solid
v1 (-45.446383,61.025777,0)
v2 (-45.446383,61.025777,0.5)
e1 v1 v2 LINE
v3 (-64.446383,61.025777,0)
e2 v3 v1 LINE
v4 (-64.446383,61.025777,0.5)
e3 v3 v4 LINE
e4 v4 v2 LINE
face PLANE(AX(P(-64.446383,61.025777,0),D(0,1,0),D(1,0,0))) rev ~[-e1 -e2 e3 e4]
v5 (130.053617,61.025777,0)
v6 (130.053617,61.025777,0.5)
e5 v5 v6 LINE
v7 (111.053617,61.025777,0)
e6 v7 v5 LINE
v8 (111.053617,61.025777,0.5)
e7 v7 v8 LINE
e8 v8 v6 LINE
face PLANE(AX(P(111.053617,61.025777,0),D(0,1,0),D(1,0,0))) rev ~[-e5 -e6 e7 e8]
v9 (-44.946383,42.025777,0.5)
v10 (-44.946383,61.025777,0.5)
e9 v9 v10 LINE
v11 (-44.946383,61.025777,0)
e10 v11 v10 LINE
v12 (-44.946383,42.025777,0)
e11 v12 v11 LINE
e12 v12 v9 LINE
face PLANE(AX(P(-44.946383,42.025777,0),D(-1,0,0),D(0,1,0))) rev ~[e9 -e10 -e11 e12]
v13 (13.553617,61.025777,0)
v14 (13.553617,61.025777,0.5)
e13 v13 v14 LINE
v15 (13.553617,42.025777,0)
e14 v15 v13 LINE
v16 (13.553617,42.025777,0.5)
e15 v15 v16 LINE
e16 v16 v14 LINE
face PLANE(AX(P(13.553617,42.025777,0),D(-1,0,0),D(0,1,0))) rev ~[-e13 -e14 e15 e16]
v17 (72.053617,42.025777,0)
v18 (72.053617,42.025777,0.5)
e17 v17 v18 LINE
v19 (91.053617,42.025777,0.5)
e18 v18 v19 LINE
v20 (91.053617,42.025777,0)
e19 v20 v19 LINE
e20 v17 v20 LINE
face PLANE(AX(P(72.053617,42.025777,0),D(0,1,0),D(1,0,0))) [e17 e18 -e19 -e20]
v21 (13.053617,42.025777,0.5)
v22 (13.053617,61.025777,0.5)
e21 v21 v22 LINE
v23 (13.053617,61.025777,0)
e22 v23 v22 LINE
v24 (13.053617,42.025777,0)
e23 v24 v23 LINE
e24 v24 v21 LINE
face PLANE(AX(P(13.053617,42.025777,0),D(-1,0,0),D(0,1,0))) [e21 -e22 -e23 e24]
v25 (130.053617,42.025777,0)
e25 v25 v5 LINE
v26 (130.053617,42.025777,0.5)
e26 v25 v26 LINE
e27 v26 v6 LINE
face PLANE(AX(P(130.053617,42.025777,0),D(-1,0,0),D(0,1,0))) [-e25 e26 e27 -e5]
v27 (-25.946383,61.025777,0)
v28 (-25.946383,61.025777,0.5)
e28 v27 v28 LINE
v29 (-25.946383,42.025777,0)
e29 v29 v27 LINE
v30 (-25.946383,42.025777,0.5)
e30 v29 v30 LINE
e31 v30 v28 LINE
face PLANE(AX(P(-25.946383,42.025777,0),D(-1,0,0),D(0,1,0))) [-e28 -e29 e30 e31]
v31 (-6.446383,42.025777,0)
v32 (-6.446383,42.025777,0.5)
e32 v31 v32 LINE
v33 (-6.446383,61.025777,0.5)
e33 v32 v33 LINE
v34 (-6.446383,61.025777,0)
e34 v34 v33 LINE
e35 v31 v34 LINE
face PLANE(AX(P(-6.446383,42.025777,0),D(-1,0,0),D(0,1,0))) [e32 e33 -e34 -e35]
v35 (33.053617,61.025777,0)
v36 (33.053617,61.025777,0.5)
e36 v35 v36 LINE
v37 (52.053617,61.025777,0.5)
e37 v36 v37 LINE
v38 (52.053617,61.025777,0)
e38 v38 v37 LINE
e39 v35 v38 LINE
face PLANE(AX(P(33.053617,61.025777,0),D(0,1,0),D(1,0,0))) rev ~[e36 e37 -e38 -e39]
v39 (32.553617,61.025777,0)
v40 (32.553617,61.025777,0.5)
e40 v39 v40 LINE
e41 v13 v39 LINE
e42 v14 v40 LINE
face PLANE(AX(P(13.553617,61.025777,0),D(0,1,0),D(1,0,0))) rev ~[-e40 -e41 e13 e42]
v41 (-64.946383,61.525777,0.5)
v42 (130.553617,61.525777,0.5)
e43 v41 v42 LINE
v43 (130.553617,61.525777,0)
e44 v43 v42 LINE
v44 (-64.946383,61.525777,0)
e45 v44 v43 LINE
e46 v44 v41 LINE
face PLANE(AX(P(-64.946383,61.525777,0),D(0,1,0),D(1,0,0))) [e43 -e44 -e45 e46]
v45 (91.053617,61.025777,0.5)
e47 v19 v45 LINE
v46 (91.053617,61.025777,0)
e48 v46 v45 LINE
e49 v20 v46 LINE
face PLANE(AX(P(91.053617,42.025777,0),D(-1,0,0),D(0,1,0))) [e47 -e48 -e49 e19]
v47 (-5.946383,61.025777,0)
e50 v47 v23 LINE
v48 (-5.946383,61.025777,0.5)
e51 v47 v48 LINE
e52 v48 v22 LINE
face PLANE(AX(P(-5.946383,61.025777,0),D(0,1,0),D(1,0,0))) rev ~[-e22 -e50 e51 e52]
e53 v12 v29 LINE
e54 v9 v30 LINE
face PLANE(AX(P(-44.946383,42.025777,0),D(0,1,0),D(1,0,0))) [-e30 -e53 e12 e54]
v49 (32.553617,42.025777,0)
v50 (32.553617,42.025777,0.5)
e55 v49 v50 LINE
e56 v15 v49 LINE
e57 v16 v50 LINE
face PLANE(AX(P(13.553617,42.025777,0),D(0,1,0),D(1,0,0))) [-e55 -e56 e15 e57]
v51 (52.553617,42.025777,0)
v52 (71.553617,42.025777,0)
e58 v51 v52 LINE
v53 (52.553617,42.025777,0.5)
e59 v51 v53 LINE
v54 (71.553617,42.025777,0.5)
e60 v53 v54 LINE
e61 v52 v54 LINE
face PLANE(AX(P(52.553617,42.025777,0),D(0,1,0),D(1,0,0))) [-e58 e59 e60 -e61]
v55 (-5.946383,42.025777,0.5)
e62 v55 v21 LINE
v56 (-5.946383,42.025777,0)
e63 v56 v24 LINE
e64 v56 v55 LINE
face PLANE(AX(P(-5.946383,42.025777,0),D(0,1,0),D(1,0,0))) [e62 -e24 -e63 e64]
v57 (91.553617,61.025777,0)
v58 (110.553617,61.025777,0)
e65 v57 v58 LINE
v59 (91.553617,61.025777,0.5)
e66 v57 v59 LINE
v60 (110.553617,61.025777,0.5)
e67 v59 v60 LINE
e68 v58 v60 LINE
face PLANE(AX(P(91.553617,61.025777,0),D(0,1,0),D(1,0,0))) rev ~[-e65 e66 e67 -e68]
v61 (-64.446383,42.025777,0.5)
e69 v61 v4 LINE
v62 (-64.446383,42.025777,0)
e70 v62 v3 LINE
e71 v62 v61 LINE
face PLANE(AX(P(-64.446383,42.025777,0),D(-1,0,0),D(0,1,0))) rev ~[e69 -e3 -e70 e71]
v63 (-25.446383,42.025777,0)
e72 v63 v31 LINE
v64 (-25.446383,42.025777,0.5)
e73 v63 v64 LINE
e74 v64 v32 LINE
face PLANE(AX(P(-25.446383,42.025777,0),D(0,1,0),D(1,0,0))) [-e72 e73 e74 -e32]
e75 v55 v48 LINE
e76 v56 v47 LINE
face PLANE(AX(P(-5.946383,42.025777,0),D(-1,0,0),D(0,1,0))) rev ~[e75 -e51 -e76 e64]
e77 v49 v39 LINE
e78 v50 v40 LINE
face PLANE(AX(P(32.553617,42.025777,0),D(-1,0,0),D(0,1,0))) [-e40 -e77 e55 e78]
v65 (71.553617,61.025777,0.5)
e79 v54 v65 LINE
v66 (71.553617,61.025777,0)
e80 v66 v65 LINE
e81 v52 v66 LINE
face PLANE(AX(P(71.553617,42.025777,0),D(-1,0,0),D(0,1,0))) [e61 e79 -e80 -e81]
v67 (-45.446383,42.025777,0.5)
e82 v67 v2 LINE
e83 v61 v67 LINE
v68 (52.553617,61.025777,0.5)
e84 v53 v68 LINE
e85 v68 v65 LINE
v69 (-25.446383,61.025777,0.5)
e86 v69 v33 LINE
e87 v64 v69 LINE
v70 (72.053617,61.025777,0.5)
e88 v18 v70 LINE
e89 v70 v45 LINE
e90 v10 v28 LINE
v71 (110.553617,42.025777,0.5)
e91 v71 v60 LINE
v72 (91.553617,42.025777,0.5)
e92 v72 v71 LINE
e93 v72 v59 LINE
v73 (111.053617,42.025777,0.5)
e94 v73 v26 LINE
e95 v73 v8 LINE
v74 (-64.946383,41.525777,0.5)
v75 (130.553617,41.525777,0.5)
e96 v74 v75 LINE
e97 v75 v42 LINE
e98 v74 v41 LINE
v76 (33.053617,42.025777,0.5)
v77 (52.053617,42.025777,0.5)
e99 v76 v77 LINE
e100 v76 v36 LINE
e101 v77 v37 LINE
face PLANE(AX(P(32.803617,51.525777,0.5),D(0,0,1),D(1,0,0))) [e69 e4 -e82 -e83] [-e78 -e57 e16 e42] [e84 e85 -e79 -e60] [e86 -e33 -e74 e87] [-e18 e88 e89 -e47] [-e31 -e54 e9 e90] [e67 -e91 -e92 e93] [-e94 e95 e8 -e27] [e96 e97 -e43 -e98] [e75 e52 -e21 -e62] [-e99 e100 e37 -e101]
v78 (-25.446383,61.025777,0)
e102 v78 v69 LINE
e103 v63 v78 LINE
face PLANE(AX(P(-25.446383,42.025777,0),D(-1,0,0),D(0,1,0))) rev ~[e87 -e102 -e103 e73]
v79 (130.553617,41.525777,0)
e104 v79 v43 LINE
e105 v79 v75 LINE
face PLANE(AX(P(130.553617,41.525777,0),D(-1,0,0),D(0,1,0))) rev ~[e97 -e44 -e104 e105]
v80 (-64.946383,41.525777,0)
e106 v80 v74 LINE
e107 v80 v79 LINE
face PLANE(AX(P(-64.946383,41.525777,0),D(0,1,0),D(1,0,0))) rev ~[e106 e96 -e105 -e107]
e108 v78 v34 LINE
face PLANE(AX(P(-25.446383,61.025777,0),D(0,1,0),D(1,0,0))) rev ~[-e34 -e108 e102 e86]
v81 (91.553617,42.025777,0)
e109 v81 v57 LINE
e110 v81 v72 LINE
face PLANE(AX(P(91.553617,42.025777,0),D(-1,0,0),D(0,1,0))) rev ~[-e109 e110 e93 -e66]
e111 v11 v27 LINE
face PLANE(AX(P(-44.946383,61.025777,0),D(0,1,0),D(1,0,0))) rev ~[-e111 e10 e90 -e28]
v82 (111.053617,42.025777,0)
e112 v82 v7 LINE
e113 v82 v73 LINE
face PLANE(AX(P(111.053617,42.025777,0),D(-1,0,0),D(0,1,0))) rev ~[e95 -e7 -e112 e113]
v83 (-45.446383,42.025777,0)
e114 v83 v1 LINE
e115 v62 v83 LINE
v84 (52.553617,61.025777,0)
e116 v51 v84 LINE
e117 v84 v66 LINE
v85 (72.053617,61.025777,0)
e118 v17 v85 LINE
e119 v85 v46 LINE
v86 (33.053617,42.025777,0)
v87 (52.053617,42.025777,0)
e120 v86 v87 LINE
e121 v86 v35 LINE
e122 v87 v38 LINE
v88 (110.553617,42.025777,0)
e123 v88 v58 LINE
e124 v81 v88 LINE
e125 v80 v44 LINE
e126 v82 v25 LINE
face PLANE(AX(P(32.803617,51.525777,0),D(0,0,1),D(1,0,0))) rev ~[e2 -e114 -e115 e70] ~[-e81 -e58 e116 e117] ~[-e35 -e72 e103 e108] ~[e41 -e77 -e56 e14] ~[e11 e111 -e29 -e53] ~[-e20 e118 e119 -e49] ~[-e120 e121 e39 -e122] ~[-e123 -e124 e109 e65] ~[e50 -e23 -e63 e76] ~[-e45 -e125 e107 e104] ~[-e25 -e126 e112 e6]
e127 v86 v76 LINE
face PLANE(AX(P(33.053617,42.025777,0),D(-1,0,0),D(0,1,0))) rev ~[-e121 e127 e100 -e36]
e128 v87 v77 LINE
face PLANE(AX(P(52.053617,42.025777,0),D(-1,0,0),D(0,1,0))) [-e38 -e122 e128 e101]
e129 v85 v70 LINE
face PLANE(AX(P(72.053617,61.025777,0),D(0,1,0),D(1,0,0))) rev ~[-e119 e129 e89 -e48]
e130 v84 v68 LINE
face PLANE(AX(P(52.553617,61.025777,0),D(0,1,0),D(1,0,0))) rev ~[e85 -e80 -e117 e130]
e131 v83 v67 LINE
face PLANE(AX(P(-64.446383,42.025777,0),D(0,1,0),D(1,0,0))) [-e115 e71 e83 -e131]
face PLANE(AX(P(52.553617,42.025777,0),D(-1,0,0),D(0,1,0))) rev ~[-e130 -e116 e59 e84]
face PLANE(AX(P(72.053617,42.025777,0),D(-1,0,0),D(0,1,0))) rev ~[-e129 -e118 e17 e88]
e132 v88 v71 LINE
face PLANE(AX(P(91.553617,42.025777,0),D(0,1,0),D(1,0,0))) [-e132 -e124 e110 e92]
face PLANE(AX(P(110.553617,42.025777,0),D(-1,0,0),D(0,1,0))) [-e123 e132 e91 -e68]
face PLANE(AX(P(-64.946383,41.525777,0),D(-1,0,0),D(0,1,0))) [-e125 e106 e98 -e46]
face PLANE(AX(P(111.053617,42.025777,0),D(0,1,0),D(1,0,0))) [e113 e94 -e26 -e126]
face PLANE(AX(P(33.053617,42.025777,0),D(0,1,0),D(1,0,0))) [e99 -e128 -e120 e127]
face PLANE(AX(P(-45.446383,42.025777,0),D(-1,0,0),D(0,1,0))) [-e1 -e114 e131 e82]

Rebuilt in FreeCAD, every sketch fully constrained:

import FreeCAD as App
import Part
import Sketcher

V = App.Vector
Q = App.Units.Quantity

doc = App.newDocument("Part")
params = doc.addObject("Spreadsheet::Sheet", "Params")
for row, (alias, value) in enumerate([
    ("sketch1_width", "19 mm"),
    ("sketch1_height", "20 mm"),
    ("sketch1_width2", "195.5 mm"),
    ("pad1_length", "0.5 mm"),
], start=1):
    params.set(f"A{row}", alias)
    params.set(f"B{row}", "=" + value)
    params.setAlias(f"B{row}", alias)

body = doc.addObject("PartDesign::Body", "Body")

# Sketch on XY plane
sketch1 = body.newObject("Sketcher::SketchObject", "Sketch")
sketch1.AttachmentSupport = (doc.getObject("XY_Plane"), [""])
sketch1.MapMode = "FlatFace"
sketch1.addGeometry([
    Part.LineSegment(V(-65, 62, 0), V(-65, 42, 0)),  # 0
    Part.LineSegment(V(-65, 42, 0), V(131, 42, 0)),  # 1
    Part.LineSegment(V(131, 42, 0), V(131, 62, 0)),  # 2
    Part.LineSegment(V(131, 62, 0), V(-65, 62, 0)),  # 3
    Part.LineSegment(V(-45, 42, 0), V(-64, 42, 0)),  # 4
    Part.LineSegment(V(-64, 42, 0), V(-64, 61, 0)),  # 5
    Part.LineSegment(V(-64, 61, 0), V(-45, 61, 0)),  # 6
    Part.LineSegment(V(-45, 61, 0), V(-45, 42, 0)),  # 7
    Part.LineSegment(V(-26, 42, 0), V(-45, 42, 0)),  # 8
    Part.LineSegment(V(-45, 42, 0), V(-45, 61, 0)),  # 9
    Part.LineSegment(V(-45, 61, 0), V(-26, 61, 0)),  # 10
    Part.LineSegment(V(-26, 61, 0), V(-26, 42, 0)),  # 11
    Part.LineSegment(V(-6, 42, 0), V(-25, 42, 0)),  # 12
    Part.LineSegment(V(-25, 42, 0), V(-25, 61, 0)),  # 13
    Part.LineSegment(V(-25, 61, 0), V(-6, 61, 0)),  # 14
    Part.LineSegment(V(-6, 61, 0), V(-6, 42, 0)),  # 15
    Part.LineSegment(V(13, 42, 0), V(-6, 42, 0)),  # 16
    Part.LineSegment(V(-6, 42, 0), V(-6, 61, 0)),  # 17
    Part.LineSegment(V(-6, 61, 0), V(13, 61, 0)),  # 18
    Part.LineSegment(V(13, 61, 0), V(13, 42, 0)),  # 19
    Part.LineSegment(V(33, 42, 0), V(14, 42, 0)),  # 20
    Part.LineSegment(V(14, 42, 0), V(14, 61, 0)),  # 21
    Part.LineSegment(V(14, 61, 0), V(33, 61, 0)),  # 22
    Part.LineSegment(V(33, 61, 0), V(33, 42, 0)),  # 23
    Part.LineSegment(V(52, 42, 0), V(33, 42, 0)),  # 24
    Part.LineSegment(V(33, 42, 0), V(33, 61, 0)),  # 25
    Part.LineSegment(V(33, 61, 0), V(52, 61, 0)),  # 26
    Part.LineSegment(V(52, 61, 0), V(52, 42, 0)),  # 27
    Part.LineSegment(V(72, 42, 0), V(53, 42, 0)),  # 28
    Part.LineSegment(V(53, 42, 0), V(53, 61, 0)),  # 29
    Part.LineSegment(V(53, 61, 0), V(72, 61, 0)),  # 30
    Part.LineSegment(V(72, 61, 0), V(72, 42, 0)),  # 31
    Part.LineSegment(V(91, 42, 0), V(72, 42, 0)),  # 32
    Part.LineSegment(V(72, 42, 0), V(72, 61, 0)),  # 33
    Part.LineSegment(V(72, 61, 0), V(91, 61, 0)),  # 34
    Part.LineSegment(V(91, 61, 0), V(91, 42, 0)),  # 35
    Part.LineSegment(V(111, 42, 0), V(92, 42, 0)),  # 36
    Part.LineSegment(V(92, 42, 0), V(92, 61, 0)),  # 37
    Part.LineSegment(V(92, 61, 0), V(111, 61, 0)),  # 38
    Part.LineSegment(V(111, 61, 0), V(111, 42, 0)),  # 39
    Part.LineSegment(V(130, 42, 0), V(111, 42, 0)),  # 40
    Part.LineSegment(V(111, 42, 0), V(111, 61, 0)),  # 41
    Part.LineSegment(V(111, 61, 0), V(130, 61, 0)),  # 42
    Part.LineSegment(V(130, 61, 0), V(130, 42, 0)),  # 43
], False)
sketch1.addConstraint([
    Sketcher.Constraint("Coincident", 0, 2, 1, 1),
    Sketcher.Constraint("Coincident", 1, 2, 2, 1),
    Sketcher.Constraint("Coincident", 2, 2, 3, 1),
    Sketcher.Constraint("Coincident", 3, 2, 0, 1),
    Sketcher.Constraint("Coincident", 4, 2, 5, 1),
    Sketcher.Constraint("Coincident", 5, 2, 6, 1),
    Sketcher.Constraint("Coincident", 6, 2, 7, 1),
    Sketcher.Constraint("Coincident", 7, 2, 4, 1),
    Sketcher.Constraint("Coincident", 8, 2, 9, 1),
    Sketcher.Constraint("Coincident", 9, 2, 10, 1),
    Sketcher.Constraint("Coincident", 10, 2, 11, 1),
    Sketcher.Constraint("Coincident", 11, 2, 8, 1),
    Sketcher.Constraint("Coincident", 12, 2, 13, 1),
    Sketcher.Constraint("Coincident", 13, 2, 14, 1),
    Sketcher.Constraint("Coincident", 14, 2, 15, 1),
    Sketcher.Constraint("Coincident", 15, 2, 12, 1),
    Sketcher.Constraint("Coincident", 16, 2, 17, 1),
    Sketcher.Constraint("Coincident", 17, 2, 18, 1),
    Sketcher.Constraint("Coincident", 18, 2, 19, 1),
    Sketcher.Constraint("Coincident", 19, 2, 16, 1),
    Sketcher.Constraint("Coincident", 20, 2, 21, 1),
    Sketcher.Constraint("Coincident", 21, 2, 22, 1),
    Sketcher.Constraint("Coincident", 22, 2, 23, 1),
    Sketcher.Constraint("Coincident", 23, 2, 20, 1),
    Sketcher.Constraint("Coincident", 24, 2, 25, 1),
    Sketcher.Constraint("Coincident", 25, 2, 26, 1),
    Sketcher.Constraint("Coincident", 26, 2, 27, 1),
    Sketcher.Constraint("Coincident", 27, 2, 24, 1),
    Sketcher.Constraint("Coincident", 28, 2, 29, 1),
    Sketcher.Constraint("Coincident", 29, 2, 30, 1),
    Sketcher.Constraint("Coincident", 30, 2, 31, 1),
    Sketcher.Constraint("Coincident", 31, 2, 28, 1),
    Sketcher.Constraint("Coincident", 32, 2, 33, 1),
    Sketcher.Constraint("Coincident", 33, 2, 34, 1),
    Sketcher.Constraint("Coincident", 34, 2, 35, 1),
    Sketcher.Constraint("Coincident", 35, 2, 32, 1),
    Sketcher.Constraint("Coincident", 36, 2, 37, 1),
    Sketcher.Constraint("Coincident", 37, 2, 38, 1),
    Sketcher.Constraint("Coincident", 38, 2, 39, 1),
    Sketcher.Constraint("Coincident", 39, 2, 36, 1),
    Sketcher.Constraint("Coincident", 40, 2, 41, 1),
    Sketcher.Constraint("Coincident", 41, 2, 42, 1),
    Sketcher.Constraint("Coincident", 42, 2, 43, 1),
    Sketcher.Constraint("Coincident", 43, 2, 40, 1),
    Sketcher.Constraint("Vertical", 0),
    Sketcher.Constraint("Horizontal", 1),
    Sketcher.Constraint("Vertical", 2),
    Sketcher.Constraint("Horizontal", 3),
    Sketcher.Constraint("Horizontal", 4),
    Sketcher.Constraint("Vertical", 5),
    Sketcher.Constraint("Horizontal", 6),
    Sketcher.Constraint("Vertical", 7),
    Sketcher.Constraint("Horizontal", 8),
    Sketcher.Constraint("Vertical", 9),
    Sketcher.Constraint("Horizontal", 10),
    Sketcher.Constraint("Vertical", 11),
    Sketcher.Constraint("Horizontal", 12),
    Sketcher.Constraint("Vertical", 13),
    Sketcher.Constraint("Horizontal", 14),
    Sketcher.Constraint("Vertical", 15),
    Sketcher.Constraint("Horizontal", 16),
    Sketcher.Constraint("Vertical", 17),
    Sketcher.Constraint("Horizontal", 18),
    Sketcher.Constraint("Vertical", 19),
    Sketcher.Constraint("Horizontal", 20),
    Sketcher.Constraint("Vertical", 21),
    Sketcher.Constraint("Horizontal", 22),
    Sketcher.Constraint("Vertical", 23),
    Sketcher.Constraint("Horizontal", 24),
    Sketcher.Constraint("Vertical", 25),
    Sketcher.Constraint("Horizontal", 26),
    Sketcher.Constraint("Vertical", 27),
    Sketcher.Constraint("Horizontal", 28),
    Sketcher.Constraint("Vertical", 29),
    Sketcher.Constraint("Horizontal", 30),
    Sketcher.Constraint("Vertical", 31),
    Sketcher.Constraint("Horizontal", 32),
    Sketcher.Constraint("Vertical", 33),
    Sketcher.Constraint("Horizontal", 34),
    Sketcher.Constraint("Vertical", 35),
    Sketcher.Constraint("Horizontal", 36),
    Sketcher.Constraint("Vertical", 37),
    Sketcher.Constraint("Horizontal", 38),
    Sketcher.Constraint("Vertical", 39),
    Sketcher.Constraint("Horizontal", 40),
    Sketcher.Constraint("Vertical", 41),
    Sketcher.Constraint("Horizontal", 42),
    Sketcher.Constraint("Vertical", 43),
    Sketcher.Constraint("Horizontal", 7, 2, 8, 2),
    Sketcher.Constraint("Horizontal", 6, 2, 9, 2),
    Sketcher.Constraint("Horizontal", 11, 2, 12, 2),
    Sketcher.Constraint("Horizontal", 10, 2, 13, 2),
    Sketcher.Constraint("Horizontal", 15, 2, 16, 2),
    Sketcher.Constraint("Horizontal", 14, 2, 17, 2),
    Sketcher.Constraint("Horizontal", 19, 2, 20, 2),
    Sketcher.Constraint("Horizontal", 18, 2, 21, 2),
    Sketcher.Constraint("Horizontal", 23, 2, 24, 2),
    Sketcher.Constraint("Horizontal", 22, 2, 25, 2),
    Sketcher.Constraint("Horizontal", 27, 2, 28, 2),
    Sketcher.Constraint("Horizontal", 26, 2, 29, 2),
    Sketcher.Constraint("Horizontal", 31, 2, 32, 2),
    Sketcher.Constraint("Horizontal", 30, 2, 33, 2),
    Sketcher.Constraint("Horizontal", 35, 2, 36, 2),
    Sketcher.Constraint("Horizontal", 34, 2, 37, 2),
    Sketcher.Constraint("Horizontal", 39, 2, 40, 2),
    Sketcher.Constraint("Horizontal", 38, 2, 41, 2),
    Sketcher.Constraint("Equal", 6, 8),
    Sketcher.Constraint("Equal", 10, 12),
    Sketcher.Constraint("Equal", 14, 16),
    Sketcher.Constraint("Equal", 18, 20),
    Sketcher.Constraint("Equal", 22, 24),
    Sketcher.Constraint("Equal", 26, 28),
    Sketcher.Constraint("Equal", 30, 32),
    Sketcher.Constraint("Equal", 34, 36),
    Sketcher.Constraint("Equal", 38, 40),
    Sketcher.Constraint("Equal", 42, 5),
    Sketcher.Constraint("DistanceX", 4, 2, 4, 1, Q("19 mm")),
    Sketcher.Constraint("DistanceY", 0, 2, 0, 1, Q("20 mm")),
    Sketcher.Constraint("DistanceX", 1, 1, 1, 2, Q("195.5 mm")),
    Sketcher.Constraint("DistanceX", 4, 2, 1, 2, Q("195 mm")),
    Sketcher.Constraint("DistanceX", 0, 2, 8, 2, Q("20 mm")),
    Sketcher.Constraint("DistanceX", 7, 2, 12, 2, Q("20 mm")),
    Sketcher.Constraint("DistanceX", 11, 2, 16, 2, Q("20 mm")),
    Sketcher.Constraint("DistanceX", 15, 2, 20, 2, Q("20 mm")),
    Sketcher.Constraint("DistanceX", 19, 2, 24, 2, Q("20 mm")),
    Sketcher.Constraint("DistanceX", 23, 2, 28, 2, Q("20 mm")),
    Sketcher.Constraint("DistanceX", 27, 2, 32, 2, Q("20 mm")),
    Sketcher.Constraint("DistanceX", 31, 2, 36, 2, Q("20 mm")),
    Sketcher.Constraint("DistanceX", 35, 2, 40, 2, Q("20 mm")),
    Sketcher.Constraint("DistanceY", 0, 2, 4, 2, Q("0.5 mm")),
    Sketcher.Constraint("DistanceX", 0, 2, -1, 1, Q("64.946383 mm")),
    Sketcher.Constraint("DistanceY", -1, 1, 0, 2, Q("41.525777 mm")),
])
sketch1.setExpression("Constraints[116]", "Params.sketch1_width")
sketch1.setExpression("Constraints[117]", "Params.sketch1_height")
sketch1.setExpression("Constraints[118]", "Params.sketch1_width2")
pad1 = body.newObject("PartDesign::Pad", "Pad")
pad1.Profile = sketch1
pad1.setExpression("Length", "Params.pad1_length")

doc.recompute()
